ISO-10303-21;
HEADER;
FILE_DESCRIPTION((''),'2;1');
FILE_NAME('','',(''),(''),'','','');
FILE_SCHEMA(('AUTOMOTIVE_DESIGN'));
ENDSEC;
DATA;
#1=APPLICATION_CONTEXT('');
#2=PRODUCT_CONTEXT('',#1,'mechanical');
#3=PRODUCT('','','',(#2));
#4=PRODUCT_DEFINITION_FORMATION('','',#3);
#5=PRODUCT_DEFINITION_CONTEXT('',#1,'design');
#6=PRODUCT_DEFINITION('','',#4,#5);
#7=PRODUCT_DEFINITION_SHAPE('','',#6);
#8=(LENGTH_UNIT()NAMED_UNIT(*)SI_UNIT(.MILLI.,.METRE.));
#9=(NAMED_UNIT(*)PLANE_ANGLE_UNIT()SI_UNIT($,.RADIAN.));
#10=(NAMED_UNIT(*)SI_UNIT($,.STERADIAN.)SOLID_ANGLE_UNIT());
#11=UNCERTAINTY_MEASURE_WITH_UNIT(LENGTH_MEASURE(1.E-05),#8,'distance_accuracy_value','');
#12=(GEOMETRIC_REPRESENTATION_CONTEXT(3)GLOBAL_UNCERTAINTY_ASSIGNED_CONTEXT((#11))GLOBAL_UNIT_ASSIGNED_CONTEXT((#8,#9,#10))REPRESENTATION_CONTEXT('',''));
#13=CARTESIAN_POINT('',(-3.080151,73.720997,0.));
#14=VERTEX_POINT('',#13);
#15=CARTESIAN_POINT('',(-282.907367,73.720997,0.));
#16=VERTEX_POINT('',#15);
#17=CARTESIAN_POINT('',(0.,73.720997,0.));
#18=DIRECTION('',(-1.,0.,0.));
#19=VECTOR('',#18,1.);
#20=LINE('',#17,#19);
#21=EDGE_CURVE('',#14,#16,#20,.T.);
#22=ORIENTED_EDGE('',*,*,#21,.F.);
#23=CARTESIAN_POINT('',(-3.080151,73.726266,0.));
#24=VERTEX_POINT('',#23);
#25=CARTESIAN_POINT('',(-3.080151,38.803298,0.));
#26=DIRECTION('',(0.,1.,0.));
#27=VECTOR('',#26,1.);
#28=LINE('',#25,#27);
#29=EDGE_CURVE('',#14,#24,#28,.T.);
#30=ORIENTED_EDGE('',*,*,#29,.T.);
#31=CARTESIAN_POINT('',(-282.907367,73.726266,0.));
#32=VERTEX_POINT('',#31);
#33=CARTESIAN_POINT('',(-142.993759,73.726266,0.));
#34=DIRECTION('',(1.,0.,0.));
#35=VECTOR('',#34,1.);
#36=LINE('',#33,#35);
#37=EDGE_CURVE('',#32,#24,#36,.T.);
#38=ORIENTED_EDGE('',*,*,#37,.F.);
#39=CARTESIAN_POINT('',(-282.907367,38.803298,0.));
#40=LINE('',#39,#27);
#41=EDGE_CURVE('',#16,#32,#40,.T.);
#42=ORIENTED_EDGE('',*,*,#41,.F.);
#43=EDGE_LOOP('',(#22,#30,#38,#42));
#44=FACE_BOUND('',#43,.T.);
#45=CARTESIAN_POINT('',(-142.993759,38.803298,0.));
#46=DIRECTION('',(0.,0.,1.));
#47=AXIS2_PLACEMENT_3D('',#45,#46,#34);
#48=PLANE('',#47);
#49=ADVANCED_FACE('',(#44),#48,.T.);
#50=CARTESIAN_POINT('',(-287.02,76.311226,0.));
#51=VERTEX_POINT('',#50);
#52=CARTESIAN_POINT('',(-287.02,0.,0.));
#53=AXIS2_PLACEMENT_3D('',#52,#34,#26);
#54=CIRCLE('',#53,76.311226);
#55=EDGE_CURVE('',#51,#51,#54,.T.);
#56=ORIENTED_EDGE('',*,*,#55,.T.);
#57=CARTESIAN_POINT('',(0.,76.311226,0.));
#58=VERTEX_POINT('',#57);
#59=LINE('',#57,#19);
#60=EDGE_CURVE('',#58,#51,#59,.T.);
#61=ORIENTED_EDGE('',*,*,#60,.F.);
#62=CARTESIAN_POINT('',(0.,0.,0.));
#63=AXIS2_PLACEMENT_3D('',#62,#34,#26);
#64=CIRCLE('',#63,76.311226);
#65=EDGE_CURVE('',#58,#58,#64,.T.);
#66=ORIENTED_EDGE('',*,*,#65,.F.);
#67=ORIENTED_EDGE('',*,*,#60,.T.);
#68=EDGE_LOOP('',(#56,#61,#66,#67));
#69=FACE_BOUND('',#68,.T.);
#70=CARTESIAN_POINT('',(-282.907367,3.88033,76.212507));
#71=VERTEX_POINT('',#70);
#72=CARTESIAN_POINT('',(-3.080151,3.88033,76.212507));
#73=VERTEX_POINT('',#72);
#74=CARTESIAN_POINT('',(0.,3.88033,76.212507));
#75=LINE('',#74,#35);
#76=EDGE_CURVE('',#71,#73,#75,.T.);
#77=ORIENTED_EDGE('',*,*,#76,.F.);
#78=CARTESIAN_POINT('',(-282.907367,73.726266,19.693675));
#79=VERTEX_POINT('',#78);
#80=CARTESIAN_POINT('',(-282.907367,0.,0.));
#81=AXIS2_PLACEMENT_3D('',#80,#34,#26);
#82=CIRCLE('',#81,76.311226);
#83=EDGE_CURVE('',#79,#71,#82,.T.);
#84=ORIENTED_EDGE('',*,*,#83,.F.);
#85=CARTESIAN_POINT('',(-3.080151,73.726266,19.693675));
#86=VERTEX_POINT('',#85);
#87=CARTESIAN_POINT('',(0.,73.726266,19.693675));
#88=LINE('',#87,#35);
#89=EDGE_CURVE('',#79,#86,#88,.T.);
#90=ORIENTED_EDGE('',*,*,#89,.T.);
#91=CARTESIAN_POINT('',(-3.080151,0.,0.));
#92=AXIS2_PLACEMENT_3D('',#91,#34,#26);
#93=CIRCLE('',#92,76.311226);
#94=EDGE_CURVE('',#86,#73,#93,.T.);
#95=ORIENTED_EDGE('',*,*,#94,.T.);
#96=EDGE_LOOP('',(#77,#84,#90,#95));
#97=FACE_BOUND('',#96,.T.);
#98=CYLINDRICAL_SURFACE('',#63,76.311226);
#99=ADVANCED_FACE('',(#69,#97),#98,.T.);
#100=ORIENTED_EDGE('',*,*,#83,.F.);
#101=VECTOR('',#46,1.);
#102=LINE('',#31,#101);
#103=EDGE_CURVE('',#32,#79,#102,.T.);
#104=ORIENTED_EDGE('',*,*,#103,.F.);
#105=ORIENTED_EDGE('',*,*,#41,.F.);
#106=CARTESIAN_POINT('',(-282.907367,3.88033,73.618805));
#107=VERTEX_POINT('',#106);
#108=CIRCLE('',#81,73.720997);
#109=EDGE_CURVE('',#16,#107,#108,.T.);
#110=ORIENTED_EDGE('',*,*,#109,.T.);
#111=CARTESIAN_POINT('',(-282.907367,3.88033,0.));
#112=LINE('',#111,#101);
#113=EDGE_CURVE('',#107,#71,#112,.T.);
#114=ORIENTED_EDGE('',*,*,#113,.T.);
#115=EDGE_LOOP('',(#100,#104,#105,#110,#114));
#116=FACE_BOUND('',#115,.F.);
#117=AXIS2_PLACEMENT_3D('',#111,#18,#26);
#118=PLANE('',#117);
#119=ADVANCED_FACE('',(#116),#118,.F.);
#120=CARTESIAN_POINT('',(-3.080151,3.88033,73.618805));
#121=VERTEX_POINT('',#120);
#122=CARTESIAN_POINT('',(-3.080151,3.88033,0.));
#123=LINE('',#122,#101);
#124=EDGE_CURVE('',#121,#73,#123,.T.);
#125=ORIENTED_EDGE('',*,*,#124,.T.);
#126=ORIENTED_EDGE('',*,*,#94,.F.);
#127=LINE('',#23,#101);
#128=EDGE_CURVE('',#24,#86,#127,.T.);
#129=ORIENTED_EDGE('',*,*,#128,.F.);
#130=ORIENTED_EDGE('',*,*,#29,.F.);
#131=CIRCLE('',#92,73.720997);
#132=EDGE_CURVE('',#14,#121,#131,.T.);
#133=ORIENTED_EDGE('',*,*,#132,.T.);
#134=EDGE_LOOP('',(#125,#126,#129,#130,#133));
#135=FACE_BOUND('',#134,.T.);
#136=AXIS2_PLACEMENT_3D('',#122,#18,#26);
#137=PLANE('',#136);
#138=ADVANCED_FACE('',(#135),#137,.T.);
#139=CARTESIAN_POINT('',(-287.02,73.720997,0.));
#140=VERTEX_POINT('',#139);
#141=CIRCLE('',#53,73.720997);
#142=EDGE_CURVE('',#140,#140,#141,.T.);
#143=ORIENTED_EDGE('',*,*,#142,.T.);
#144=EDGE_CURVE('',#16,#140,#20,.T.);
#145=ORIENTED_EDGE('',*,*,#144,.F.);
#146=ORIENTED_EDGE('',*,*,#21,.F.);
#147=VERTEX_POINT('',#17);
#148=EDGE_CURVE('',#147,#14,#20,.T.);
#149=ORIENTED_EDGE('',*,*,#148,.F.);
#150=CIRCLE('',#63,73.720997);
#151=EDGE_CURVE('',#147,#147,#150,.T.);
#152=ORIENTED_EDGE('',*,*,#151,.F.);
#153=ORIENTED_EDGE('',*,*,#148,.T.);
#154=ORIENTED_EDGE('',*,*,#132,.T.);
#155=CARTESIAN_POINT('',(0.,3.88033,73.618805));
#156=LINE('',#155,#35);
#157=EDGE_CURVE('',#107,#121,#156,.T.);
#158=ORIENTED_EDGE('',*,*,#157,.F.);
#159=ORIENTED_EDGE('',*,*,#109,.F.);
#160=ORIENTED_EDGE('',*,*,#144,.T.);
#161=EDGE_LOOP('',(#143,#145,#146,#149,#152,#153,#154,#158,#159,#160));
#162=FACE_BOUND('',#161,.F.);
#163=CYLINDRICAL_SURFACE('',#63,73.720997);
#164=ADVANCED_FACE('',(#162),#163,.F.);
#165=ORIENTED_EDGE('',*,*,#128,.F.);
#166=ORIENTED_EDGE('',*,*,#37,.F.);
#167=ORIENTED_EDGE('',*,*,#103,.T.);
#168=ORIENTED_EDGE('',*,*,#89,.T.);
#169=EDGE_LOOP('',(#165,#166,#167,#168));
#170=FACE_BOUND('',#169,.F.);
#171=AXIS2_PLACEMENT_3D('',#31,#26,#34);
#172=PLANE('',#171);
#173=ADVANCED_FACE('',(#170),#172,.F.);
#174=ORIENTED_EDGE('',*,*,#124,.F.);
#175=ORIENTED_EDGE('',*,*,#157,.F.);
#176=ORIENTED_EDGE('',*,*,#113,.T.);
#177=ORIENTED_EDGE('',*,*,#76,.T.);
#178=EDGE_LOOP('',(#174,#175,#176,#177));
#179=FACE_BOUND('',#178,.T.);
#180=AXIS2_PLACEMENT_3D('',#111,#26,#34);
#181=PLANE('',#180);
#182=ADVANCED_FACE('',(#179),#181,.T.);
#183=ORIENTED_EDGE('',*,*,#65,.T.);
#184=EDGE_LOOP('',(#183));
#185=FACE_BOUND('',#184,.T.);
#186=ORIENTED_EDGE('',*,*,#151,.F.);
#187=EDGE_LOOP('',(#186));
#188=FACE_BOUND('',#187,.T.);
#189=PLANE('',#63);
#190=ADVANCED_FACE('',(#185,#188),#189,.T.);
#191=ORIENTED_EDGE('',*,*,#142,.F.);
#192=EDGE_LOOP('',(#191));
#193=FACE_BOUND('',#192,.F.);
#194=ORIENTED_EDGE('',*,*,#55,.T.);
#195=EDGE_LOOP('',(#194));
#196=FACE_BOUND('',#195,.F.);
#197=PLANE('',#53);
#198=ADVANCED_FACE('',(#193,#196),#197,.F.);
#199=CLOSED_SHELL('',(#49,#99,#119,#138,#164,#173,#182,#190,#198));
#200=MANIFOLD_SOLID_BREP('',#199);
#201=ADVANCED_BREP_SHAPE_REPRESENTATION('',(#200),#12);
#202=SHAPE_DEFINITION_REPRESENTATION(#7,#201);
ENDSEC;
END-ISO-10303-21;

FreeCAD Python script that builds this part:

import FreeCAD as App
import Part
import Sketcher

V = App.Vector
Q = App.Units.Quantity


def add_polygon(sketch, points):
    """Adds a closed chain of lines whose ends are joined by coincident constraints."""
    first, n = sketch.GeometryCount, len(points)
    for a, b in zip(points, points[1:] + points[:1]):
        sketch.addGeometry(Part.LineSegment(App.Vector(*a, 0), App.Vector(*b, 0)), False)
    for i in range(n):
        sketch.addConstraint(Sketcher.Constraint("Coincident", first + i, 2, first + (i + 1) % n, 1))

doc = App.newDocument("Part")
body = doc.addObject("PartDesign::Body", "Body")

# Sketch on YZ plane
sketch1 = body.newObject("Sketcher::SketchObject", "Sketch")
sketch1.AttachmentSupport = (doc.getObject("YZ_Plane"), [""])
sketch1.MapMode = "FlatFace"
sketch1.addGeometry(Part.Circle(V(0, 0, 0), V(0, 0, 1), 76), False)
sketch1.addConstraint(Sketcher.Constraint("Coincident", 0, 3, -1, 1))
sketch1.addConstraint(Sketcher.Constraint("Diameter", 0, 152.622452))
pad1 = body.newObject("PartDesign::Pad", "Pad")
pad1.Profile = sketch1
pad1.Length = Q("11.3 in")
pad1.Reversed = True

# Sketch on YZ plane
sketch2 = body.newObject("Sketcher::SketchObject", "Sketch001")
sketch2.AttachmentSupport = (doc.getObject("YZ_Plane"), [""])
sketch2.MapMode = "FlatFace"
sketch2.addGeometry(Part.Circle(V(0, 0, 0), V(0, 0, 1), 74), False)
sketch2.addConstraint(Sketcher.Constraint("Coincident", 0, 3, -1, 1))
sketch2.addConstraint(Sketcher.Constraint("Diameter", 0, 147.441994))
pocket1 = body.newObject("PartDesign::Pocket", "Pocket")
pocket1.Profile = sketch2
pocket1.Length = Q("67.5 in")

# Sketch on XY plane
sketch3 = body.newObject("Sketcher::SketchObject", "Sketch002")
sketch3.AttachmentSupport = (doc.getObject("XY_Plane"), [""])
sketch3.MapMode = "FlatFace"
add_polygon(sketch3, [(-283, 74), (-283, 4), (-3, 4), (-3, 74)])  # lines 0-3
sketch3.addConstraint(Sketcher.Constraint("Vertical", 0))
sketch3.addConstraint(Sketcher.Constraint("Horizontal", 1))
sketch3.addConstraint(Sketcher.Constraint("Vertical", 2))
sketch3.addConstraint(Sketcher.Constraint("Horizontal", 3))
sketch3.addConstraint(Sketcher.Constraint("DistanceX", 1, 1, 1, 2, 279.827215))
sketch3.addConstraint(Sketcher.Constraint("DistanceY", 0, 2, 0, 1, 69.845937))
sketch3.addConstraint(Sketcher.Constraint("DistanceY", -1, 1, 0, 2, 3.88033))
sketch3.addConstraint(Sketcher.Constraint("DistanceX", 1, 2, -1, 1, 3.080151))
pocket2 = body.newObject("PartDesign::Pocket", "Pocket001")
pocket2.Profile = sketch3
pocket2.Length = Q("4.82 in")
pocket2.Reversed = True

doc.recompute()
